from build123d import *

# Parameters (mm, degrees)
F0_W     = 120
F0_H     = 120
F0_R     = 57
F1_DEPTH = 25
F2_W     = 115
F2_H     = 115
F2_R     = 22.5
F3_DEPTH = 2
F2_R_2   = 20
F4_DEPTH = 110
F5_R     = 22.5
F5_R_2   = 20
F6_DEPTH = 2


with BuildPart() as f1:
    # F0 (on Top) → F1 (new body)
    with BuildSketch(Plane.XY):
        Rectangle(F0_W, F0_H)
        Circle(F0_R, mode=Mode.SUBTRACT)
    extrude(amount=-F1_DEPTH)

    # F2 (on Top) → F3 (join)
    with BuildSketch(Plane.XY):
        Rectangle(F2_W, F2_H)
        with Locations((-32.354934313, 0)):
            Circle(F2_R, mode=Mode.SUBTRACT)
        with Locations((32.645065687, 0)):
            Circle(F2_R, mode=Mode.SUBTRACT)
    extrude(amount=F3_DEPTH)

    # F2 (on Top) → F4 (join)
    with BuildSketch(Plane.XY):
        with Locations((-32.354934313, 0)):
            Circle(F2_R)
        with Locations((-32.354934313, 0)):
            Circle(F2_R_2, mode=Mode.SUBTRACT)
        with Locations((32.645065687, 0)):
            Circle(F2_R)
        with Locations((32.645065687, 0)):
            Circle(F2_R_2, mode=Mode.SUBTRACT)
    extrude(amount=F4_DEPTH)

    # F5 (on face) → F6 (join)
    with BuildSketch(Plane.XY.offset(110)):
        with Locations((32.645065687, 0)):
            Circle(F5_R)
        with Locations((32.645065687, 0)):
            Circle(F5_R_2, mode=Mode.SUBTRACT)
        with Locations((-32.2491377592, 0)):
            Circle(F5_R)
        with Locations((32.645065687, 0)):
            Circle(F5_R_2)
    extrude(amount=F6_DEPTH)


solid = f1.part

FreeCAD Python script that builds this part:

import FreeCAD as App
import Part
import Sketcher
from FreeCAD import Vector


def add_polygon(sketch, points):
    """Adds a closed chain of lines whose ends are joined by coincident constraints."""
    first, n = sketch.GeometryCount, len(points)
    for a, b in zip(points, points[1:] + points[:1]):
        sketch.addGeometry(Part.LineSegment(App.Vector(*a, 0), App.Vector(*b, 0)), False)
    for i in range(n):
        sketch.addConstraint(Sketcher.Constraint("Coincident", first + i, 2, first + (i + 1) % n, 1))

doc = App.newDocument("Part")
params = doc.addObject("Spreadsheet::Sheet", "Params")
for row, (alias, value) in enumerate([
    ("sketch1_diameter", "114 mm"),
    ("sketch1_width", "120 mm"),
    ("pad1_length", "25 mm"),
    ("sketch2_diameter", "45 mm"),
    ("sketch2_width", "115 mm"),
    ("pad2_length", "2 mm"),
    ("sketch3_diameter", "45 mm"),
    ("sketch3_diameter2", "40 mm"),
    ("pad3_length", "110 mm"),
    ("sketch4_diameter", "45 mm"),
    ("pad4_length", "2 mm"),
], start=1):
    params.set(f"A{row}", alias)
    params.set(f"B{row}", "=" + value)
    params.setAlias(f"B{row}", alias)

body = doc.addObject("PartDesign::Body", "Body")

sketch1 = doc.addObject("Sketcher::SketchObject", "Sketch")
body.addObject(sketch1)
sketch1.AttachmentSupport = (doc.XY_Plane, [""])
sketch1.MapMode = "FlatFace"
add_polygon(sketch1, [(-60, 60), (-60, -60), (60, -60), (60, 60)])
sketch1.addGeometry(Part.Circle(Vector(0, 0, 0), Vector(0, 0, 1), 57), False)
sketch1.addConstraint(Sketcher.Constraint("Vertical", 0))
sketch1.addConstraint(Sketcher.Constraint("Horizontal", 1))
sketch1.addConstraint(Sketcher.Constraint("Vertical", 2))
sketch1.addConstraint(Sketcher.Constraint("Horizontal", 3))
sketch1.addConstraint(Sketcher.Constraint("Coincident", 4, 3, -1, 1))
sketch1.addConstraint(Sketcher.Constraint("Symmetric", 0, 2, 2, 2, -1, 1))
sketch1.addConstraint(Sketcher.Constraint("Equal", 3, 0))
sketch1.addConstraint(Sketcher.Constraint("Diameter", 4, 114.0))
sketch1.addConstraint(Sketcher.Constraint("DistanceX", 1, 1, 1, 2, 120.0))
sketch1.setExpression("Constraints[11]", "Params.sketch1_diameter")
sketch1.setExpression("Constraints[12]", "Params.sketch1_width")
pad1 = doc.addObject("PartDesign::Pad", "Pad")
body.addObject(pad1)
pad1.Profile = sketch1
pad1.setExpression("Length", "Params.pad1_length")
pad1.Reversed = True

sketch2 = doc.addObject("Sketcher::SketchObject", "Sketch001")
body.addObject(sketch2)
sketch2.AttachmentSupport = (doc.XY_Plane, [""])
sketch2.MapMode = "FlatFace"
add_polygon(sketch2, [(-58, 58), (-58, -58), (58, -58), (58, 58)])
sketch2.addGeometry(Part.Circle(Vector(-32, 0, 0), Vector(0, 0, 1), 22), False)
sketch2.addGeometry(Part.Circle(Vector(33, 0, 0), Vector(0, 0, 1), 22), False)
sketch2.addConstraint(Sketcher.Constraint("Vertical", 0))
sketch2.addConstraint(Sketcher.Constraint("Horizontal", 1))
sketch2.addConstraint(Sketcher.Constraint("Vertical", 2))
sketch2.addConstraint(Sketcher.Constraint("Horizontal", 3))
sketch2.addConstraint(Sketcher.Constraint("Equal", 4, 5))
sketch2.addConstraint(Sketcher.Constraint("Symmetric", 0, 2, 2, 2, -1, 1))
sketch2.addConstraint(Sketcher.Constraint("PointOnObject", 4, 3, -1))
sketch2.addConstraint(Sketcher.Constraint("PointOnObject", 5, 3, -1))
sketch2.addConstraint(Sketcher.Constraint("Equal", 3, 0))
sketch2.addConstraint(Sketcher.Constraint("Diameter", 4, 45.0))
sketch2.addConstraint(Sketcher.Constraint("DistanceX", 1, 1, 1, 2, 115.0))
sketch2.addConstraint(Sketcher.Constraint("DistanceX", 4, 3, 5, 3, 65.0))
sketch2.addConstraint(Sketcher.Constraint("DistanceX", 4, 3, -1, 1, 32.354934))
sketch2.setExpression("Constraints[13]", "Params.sketch2_diameter")
sketch2.setExpression("Constraints[14]", "Params.sketch2_width")
pad2 = doc.addObject("PartDesign::Pad", "Pad001")
body.addObject(pad2)
pad2.Profile = sketch2
pad2.setExpression("Length", "Params.pad2_length")

sketch3 = doc.addObject("Sketcher::SketchObject", "Sketch002")
body.addObject(sketch3)
sketch3.AttachmentSupport = (doc.XY_Plane, [""])
sketch3.MapMode = "FlatFace"
sketch3.addGeometry(Part.Circle(Vector(-32, 0, 0), Vector(0, 0, 1), 22), False)
sketch3.addGeometry(Part.Circle(Vector(-32, 0, 0), Vector(0, 0, 1), 20), False)
sketch3.addGeometry(Part.Circle(Vector(33, 0, 0), Vector(0, 0, 1), 22), False)
sketch3.addGeometry(Part.Circle(Vector(33, 0, 0), Vector(0, 0, 1), 20), False)
sketch3.addConstraint(Sketcher.Constraint("Coincident", 1, 3, 0, 3))
sketch3.addConstraint(Sketcher.Constraint("Coincident", 3, 3, 2, 3))
sketch3.addConstraint(Sketcher.Constraint("Equal", 0, 2))
sketch3.addConstraint(Sketcher.Constraint("Equal", 1, 3))
sketch3.addConstraint(Sketcher.Constraint("PointOnObject", 0, 3, -1))
sketch3.addConstraint(Sketcher.Constraint("PointOnObject", 2, 3, -1))
sketch3.addConstraint(Sketcher.Constraint("Diameter", 0, 45.0))
sketch3.addConstraint(Sketcher.Constraint("Diameter", 1, 40.0))
sketch3.addConstraint(Sketcher.Constraint("DistanceX", 0, 3, 2, 3, 65.0))
sketch3.addConstraint(Sketcher.Constraint("DistanceX", 0, 3, -1, 1, 32.354934))
sketch3.setExpression("Constraints[6]", "Params.sketch3_diameter")
sketch3.setExpression("Constraints[7]", "Params.sketch3_diameter2")
pad3 = doc.addObject("PartDesign::Pad", "Pad002")
body.addObject(pad3)
pad3.Profile = sketch3
pad3.setExpression("Length", "Params.pad3_length")

sketch4 = doc.addObject("Sketcher::SketchObject", "Sketch003")
body.addObject(sketch4)
sketch4.AttachmentSupport = (doc.XY_Plane, [""])
sketch4.MapMode = "FlatFace"
sketch4.AttachmentOffset = App.Placement(Vector(0, 0, 110), App.Rotation())
sketch4.addGeometry(Part.Circle(Vector(33, 0, 0), Vector(0, 0, 1), 22), False)
sketch4.addGeometry(Part.Circle(Vector(-32, 0, 0), Vector(0, 0, 1), 22), False)
sketch4.addConstraint(Sketcher.Constraint("Equal", 0, 1))
sketch4.addConstraint(Sketcher.Constraint("PointOnObject", 0, 3, -1))
sketch4.addConstraint(Sketcher.Constraint("PointOnObject", 1, 3, -1))
sketch4.addConstraint(Sketcher.Constraint("Diameter", 0, 45.0))
sketch4.addConstraint(Sketcher.Constraint("DistanceX", -1, 1, 0, 3, 32.645066))
sketch4.addConstraint(Sketcher.Constraint("DistanceX", 1, 3, -1, 1, 32.249138))
sketch4.setExpression("Constraints[3]", "Params.sketch4_diameter")
pad4 = doc.addObject("PartDesign::Pad", "Pad003")
body.addObject(pad4)
pad4.Profile = sketch4
pad4.setExpression("Length", "Params.pad4_length")

doc.recompute()
